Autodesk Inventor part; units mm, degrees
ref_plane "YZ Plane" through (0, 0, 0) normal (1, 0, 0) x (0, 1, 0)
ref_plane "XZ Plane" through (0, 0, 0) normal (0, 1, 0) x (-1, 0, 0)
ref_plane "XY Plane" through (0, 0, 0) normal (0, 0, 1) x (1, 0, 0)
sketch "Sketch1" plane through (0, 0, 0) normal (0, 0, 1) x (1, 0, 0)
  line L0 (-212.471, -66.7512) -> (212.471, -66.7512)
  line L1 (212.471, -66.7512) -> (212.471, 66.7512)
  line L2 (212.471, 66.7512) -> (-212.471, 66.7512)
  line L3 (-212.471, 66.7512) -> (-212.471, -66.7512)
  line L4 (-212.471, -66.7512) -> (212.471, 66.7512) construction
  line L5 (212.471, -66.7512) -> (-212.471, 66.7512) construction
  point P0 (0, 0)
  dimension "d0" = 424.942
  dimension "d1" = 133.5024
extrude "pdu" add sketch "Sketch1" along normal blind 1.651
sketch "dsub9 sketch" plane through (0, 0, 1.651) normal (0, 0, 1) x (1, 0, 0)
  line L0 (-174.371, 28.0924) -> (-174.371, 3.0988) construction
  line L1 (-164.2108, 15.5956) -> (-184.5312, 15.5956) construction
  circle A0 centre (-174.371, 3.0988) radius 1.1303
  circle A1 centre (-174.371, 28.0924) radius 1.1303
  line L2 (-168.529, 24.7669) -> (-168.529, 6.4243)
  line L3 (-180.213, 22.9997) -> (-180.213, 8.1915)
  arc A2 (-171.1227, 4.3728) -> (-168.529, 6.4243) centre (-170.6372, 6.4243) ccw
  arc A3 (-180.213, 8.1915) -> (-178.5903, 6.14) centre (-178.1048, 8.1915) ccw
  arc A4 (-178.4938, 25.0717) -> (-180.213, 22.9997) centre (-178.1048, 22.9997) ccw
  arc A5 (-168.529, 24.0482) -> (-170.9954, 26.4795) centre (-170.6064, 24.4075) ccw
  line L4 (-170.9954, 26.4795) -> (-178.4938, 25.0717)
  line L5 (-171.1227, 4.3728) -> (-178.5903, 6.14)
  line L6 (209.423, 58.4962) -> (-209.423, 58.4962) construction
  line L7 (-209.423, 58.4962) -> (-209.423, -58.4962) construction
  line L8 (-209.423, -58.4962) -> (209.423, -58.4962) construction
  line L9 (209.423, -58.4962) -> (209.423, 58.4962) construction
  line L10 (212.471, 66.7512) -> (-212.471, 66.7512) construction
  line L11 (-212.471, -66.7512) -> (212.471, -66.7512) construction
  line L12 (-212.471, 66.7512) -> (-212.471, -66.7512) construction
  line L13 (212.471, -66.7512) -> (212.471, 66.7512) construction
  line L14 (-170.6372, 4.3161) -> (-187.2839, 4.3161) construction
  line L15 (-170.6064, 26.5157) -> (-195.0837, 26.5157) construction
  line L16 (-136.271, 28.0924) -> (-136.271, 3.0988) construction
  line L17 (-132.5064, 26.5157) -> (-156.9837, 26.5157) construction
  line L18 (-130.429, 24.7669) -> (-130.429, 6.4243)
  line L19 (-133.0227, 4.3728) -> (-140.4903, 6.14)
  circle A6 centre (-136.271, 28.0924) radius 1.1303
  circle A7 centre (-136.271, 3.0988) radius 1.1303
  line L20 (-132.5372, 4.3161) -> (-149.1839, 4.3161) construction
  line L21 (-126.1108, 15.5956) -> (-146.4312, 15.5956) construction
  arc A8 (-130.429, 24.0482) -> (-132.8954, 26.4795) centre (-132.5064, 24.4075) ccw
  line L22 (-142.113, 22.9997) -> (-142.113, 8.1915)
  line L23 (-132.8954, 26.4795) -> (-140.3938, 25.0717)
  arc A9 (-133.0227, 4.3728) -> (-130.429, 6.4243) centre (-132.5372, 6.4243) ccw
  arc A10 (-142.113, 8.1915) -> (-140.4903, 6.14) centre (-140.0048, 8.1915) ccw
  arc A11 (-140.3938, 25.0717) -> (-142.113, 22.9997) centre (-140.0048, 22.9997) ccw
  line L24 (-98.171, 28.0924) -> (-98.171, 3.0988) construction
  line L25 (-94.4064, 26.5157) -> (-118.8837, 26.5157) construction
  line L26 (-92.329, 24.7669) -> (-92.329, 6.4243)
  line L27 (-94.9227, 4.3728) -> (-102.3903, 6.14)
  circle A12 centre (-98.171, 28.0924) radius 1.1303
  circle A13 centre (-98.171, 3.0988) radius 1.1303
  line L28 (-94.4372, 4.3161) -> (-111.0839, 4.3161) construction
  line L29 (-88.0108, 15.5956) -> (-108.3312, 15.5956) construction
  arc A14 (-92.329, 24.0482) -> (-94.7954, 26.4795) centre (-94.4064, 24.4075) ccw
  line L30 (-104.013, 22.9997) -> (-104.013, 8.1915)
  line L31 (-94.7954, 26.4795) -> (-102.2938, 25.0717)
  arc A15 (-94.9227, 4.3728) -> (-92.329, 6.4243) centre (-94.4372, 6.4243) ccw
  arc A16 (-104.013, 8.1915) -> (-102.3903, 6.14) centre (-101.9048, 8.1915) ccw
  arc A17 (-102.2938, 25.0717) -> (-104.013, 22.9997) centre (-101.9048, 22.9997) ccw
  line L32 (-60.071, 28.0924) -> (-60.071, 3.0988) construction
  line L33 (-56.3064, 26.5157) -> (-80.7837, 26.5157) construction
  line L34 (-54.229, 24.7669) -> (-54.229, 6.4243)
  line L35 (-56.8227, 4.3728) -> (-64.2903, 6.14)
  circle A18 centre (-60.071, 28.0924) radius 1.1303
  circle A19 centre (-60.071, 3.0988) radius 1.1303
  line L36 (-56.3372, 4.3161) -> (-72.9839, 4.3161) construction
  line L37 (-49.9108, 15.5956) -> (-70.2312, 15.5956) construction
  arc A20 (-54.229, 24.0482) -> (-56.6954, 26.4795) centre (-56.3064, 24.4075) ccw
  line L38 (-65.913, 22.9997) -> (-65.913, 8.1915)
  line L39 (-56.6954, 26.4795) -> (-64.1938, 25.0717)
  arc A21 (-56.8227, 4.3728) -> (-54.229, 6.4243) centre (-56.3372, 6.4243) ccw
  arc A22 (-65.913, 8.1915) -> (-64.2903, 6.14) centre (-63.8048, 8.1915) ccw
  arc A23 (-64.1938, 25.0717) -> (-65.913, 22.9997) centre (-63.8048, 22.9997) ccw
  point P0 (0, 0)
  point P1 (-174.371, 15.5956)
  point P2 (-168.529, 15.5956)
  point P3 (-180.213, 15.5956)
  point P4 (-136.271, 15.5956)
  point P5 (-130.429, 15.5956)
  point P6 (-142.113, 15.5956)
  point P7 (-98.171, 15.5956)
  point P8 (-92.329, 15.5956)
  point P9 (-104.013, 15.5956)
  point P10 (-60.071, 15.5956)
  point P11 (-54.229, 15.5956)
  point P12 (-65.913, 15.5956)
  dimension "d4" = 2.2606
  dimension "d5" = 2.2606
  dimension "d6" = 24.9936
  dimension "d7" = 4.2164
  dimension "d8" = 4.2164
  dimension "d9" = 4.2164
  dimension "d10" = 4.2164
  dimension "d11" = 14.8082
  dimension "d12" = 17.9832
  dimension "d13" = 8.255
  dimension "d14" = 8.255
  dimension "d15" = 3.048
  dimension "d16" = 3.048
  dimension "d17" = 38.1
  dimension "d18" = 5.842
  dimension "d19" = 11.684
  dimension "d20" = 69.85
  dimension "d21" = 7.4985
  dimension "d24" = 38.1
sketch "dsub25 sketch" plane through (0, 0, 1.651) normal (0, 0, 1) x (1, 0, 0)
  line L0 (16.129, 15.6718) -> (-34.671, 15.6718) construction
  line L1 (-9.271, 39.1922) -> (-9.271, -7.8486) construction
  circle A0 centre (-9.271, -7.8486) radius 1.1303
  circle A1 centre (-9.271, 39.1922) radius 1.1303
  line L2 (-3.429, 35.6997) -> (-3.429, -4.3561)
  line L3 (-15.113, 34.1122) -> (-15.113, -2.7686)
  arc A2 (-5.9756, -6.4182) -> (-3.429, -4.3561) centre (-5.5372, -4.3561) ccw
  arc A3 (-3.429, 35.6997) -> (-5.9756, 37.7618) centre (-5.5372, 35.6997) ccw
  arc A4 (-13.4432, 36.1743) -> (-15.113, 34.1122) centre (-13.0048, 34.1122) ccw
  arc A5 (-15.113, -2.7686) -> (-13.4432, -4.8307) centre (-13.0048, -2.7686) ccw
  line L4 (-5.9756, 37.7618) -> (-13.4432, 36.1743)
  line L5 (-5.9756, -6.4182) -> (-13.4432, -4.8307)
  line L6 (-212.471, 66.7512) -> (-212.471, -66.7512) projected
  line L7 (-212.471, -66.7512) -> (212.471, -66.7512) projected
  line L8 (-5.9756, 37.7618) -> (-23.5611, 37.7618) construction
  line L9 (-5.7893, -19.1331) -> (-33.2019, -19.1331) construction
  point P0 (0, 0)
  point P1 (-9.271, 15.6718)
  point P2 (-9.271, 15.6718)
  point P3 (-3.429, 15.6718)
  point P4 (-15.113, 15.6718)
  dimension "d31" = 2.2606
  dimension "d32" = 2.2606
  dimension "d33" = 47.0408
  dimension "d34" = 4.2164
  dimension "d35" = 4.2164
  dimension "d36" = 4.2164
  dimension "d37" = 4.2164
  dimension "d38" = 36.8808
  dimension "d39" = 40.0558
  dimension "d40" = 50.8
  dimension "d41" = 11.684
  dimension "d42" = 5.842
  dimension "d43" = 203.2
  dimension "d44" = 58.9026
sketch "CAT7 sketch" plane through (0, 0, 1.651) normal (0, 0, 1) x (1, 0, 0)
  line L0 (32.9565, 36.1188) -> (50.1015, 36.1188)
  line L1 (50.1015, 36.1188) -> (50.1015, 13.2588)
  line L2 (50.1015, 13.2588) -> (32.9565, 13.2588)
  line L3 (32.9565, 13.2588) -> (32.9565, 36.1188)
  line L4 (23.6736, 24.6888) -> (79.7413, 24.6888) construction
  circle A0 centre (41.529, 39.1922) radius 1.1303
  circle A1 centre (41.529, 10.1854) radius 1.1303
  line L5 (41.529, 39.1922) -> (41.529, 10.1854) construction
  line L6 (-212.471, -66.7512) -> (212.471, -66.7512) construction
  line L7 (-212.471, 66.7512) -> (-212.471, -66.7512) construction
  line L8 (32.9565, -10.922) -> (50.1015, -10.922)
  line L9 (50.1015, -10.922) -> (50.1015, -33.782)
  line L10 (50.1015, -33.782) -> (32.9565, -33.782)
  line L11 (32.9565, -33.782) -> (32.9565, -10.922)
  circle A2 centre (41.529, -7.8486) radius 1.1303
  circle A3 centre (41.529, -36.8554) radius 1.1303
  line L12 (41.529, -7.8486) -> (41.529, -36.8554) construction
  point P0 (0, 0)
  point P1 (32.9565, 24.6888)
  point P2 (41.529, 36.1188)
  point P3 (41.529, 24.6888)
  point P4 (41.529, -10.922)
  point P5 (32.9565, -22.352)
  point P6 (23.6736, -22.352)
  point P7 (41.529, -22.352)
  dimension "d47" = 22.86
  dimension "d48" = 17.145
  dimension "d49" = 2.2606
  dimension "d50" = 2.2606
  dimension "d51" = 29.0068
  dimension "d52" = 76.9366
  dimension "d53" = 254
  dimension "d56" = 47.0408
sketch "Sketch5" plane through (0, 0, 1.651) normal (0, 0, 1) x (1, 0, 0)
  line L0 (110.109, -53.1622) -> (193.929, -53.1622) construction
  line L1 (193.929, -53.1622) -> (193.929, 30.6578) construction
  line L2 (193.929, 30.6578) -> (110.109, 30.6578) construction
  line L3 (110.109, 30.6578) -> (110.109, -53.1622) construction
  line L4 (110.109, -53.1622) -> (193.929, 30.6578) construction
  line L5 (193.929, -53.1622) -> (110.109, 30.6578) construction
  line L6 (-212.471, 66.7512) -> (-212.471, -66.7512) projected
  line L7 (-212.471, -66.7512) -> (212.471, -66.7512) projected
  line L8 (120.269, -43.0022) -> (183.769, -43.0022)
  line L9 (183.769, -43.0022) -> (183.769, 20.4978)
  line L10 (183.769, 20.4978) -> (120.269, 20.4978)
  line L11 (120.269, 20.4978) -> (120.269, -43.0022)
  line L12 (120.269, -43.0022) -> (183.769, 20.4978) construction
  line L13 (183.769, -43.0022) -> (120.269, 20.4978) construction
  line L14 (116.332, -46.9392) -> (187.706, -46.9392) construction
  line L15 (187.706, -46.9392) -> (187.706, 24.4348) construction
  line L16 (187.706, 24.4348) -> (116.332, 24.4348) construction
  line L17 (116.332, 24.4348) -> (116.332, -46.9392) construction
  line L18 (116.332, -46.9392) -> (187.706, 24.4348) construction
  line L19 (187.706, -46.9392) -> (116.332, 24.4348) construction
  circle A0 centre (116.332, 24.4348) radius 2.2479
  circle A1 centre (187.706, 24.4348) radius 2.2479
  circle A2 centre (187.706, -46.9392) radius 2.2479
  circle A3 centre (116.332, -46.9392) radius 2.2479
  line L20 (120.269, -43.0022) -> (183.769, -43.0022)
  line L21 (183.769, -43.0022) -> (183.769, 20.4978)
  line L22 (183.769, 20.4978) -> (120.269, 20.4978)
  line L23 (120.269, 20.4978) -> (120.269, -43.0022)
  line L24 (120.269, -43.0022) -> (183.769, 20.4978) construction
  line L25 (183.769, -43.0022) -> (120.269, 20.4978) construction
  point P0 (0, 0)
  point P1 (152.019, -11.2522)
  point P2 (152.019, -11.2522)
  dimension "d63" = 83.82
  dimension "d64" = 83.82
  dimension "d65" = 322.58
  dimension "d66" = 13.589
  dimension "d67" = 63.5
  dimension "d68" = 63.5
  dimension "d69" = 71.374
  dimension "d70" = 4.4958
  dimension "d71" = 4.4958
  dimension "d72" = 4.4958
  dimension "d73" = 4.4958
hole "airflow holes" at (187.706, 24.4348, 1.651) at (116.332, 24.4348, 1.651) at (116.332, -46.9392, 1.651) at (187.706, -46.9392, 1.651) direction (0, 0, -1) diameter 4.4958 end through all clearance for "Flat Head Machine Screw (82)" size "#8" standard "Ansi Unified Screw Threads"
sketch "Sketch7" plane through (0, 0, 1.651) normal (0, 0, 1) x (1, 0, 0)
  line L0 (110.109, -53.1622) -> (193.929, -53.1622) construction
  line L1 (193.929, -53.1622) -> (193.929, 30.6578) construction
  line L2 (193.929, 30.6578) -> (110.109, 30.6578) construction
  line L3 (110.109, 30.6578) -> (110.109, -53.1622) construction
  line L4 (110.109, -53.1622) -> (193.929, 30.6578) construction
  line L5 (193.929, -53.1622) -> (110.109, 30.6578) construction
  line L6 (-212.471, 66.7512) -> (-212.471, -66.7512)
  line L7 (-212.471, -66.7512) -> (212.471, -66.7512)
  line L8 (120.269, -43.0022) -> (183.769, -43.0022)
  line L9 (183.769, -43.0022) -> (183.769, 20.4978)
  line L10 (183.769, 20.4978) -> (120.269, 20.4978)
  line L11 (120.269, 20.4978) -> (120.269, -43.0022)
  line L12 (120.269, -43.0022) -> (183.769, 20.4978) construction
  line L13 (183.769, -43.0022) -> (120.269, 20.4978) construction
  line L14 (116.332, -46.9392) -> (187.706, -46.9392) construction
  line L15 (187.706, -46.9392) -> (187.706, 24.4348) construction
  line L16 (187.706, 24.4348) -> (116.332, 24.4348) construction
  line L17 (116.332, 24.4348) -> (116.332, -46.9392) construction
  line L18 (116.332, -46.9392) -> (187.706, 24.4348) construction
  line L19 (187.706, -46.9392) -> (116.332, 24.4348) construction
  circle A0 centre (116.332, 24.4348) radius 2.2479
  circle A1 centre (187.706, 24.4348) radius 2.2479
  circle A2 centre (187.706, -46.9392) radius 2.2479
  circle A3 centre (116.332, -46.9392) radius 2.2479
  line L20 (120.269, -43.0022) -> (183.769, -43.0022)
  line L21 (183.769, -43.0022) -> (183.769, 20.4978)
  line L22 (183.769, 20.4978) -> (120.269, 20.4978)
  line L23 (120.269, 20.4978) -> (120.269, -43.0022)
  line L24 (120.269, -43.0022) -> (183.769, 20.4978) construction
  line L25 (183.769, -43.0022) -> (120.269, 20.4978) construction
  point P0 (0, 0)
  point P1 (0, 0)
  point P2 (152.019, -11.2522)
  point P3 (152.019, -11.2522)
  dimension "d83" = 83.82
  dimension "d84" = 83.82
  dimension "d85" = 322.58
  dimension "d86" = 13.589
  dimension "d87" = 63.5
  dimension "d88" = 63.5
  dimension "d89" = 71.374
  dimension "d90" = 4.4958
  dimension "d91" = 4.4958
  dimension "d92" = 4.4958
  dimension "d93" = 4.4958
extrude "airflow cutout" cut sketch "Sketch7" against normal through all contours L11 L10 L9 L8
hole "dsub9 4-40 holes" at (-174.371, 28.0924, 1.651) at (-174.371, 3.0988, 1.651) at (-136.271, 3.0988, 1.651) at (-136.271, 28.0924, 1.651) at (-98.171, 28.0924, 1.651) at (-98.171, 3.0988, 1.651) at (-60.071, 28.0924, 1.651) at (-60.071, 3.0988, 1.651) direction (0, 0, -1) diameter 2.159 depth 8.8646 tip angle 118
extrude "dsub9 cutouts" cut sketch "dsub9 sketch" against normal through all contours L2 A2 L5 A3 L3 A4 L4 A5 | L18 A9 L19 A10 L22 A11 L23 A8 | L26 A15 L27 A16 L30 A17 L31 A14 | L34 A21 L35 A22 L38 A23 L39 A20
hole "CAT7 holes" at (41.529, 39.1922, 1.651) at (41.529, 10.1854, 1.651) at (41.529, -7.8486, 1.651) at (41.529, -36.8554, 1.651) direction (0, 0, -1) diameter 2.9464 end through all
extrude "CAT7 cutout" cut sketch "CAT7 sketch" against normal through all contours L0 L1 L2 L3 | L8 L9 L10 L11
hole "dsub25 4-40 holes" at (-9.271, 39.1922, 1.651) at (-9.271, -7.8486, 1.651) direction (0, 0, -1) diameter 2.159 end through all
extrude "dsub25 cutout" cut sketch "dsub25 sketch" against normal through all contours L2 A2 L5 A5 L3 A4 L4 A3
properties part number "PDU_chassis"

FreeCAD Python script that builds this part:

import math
import FreeCAD as App
import Part
import Sketcher

V = App.Vector
Q = App.Units.Quantity


def add_polygon(sketch, points):
    """Adds a closed chain of lines whose ends are joined by coincident constraints."""
    first, n = sketch.GeometryCount, len(points)
    for a, b in zip(points, points[1:] + points[:1]):
        sketch.addGeometry(Part.LineSegment(App.Vector(*a, 0), App.Vector(*b, 0)), False)
    for i in range(n):
        sketch.addConstraint(Sketcher.Constraint("Coincident", first + i, 2, first + (i + 1) % n, 1))

doc = App.newDocument("Part")
body = doc.addObject("PartDesign::Body", "Body")

# Sketch on XY plane
sketch1 = body.newObject("Sketcher::SketchObject", "Sketch")
sketch1.AttachmentSupport = (doc.getObject("XY_Plane"), [""])
sketch1.MapMode = "FlatFace"
add_polygon(sketch1, [(-212.471, 66.7512), (-212.471, -66.7512), (212.471, -66.7512), (212.471, 66.7512)])  # lines 0-3
sketch1.addConstraint(Sketcher.Constraint("Vertical", 0))
sketch1.addConstraint(Sketcher.Constraint("Horizontal", 1))
sketch1.addConstraint(Sketcher.Constraint("Vertical", 2))
sketch1.addConstraint(Sketcher.Constraint("Horizontal", 3))
sketch1.addConstraint(Sketcher.Constraint("Symmetric", 0, 2, 2, 2, -1, 1))
sketch1.addConstraint(Sketcher.Constraint("DistanceX", 1, 1, 1, 2, Q("16.73 in")))
sketch1.addConstraint(Sketcher.Constraint("DistanceY", 0, 2, 0, 1, Q("5.256 in")))
pad1 = body.newObject("PartDesign::Pad", "Pad")
pad1.Profile = sketch1
pad1.Length = Q("0.065 in")

# Sketch on XY plane
sketch2 = body.newObject("Sketcher::SketchObject", "Sketch001")
sketch2.AttachmentSupport = (doc.getObject("XY_Plane"), [""])
sketch2.MapMode = "FlatFace"
sketch2.AttachmentOffset = App.Placement(V(0, 0, 0.065 * 25.4), App.Rotation())
sketch2.addGeometry(Part.Circle(V(187.706, 24.4348, 0), V(0, 0, 1), 2.2479), False)
sketch2.addGeometry(Part.Circle(V(116.332, 24.4348, 0), V(0, 0, 1), 2.2479), False)
sketch2.addGeometry(Part.Circle(V(116.332, -46.9392, 0), V(0, 0, 1), 2.2479), False)
sketch2.addGeometry(Part.Circle(V(187.706, -46.9392, 0), V(0, 0, 1), 2.2479), False)
sketch2.addConstraint(Sketcher.Constraint("Equal", 0, 1))
sketch2.addConstraint(Sketcher.Constraint("Equal", 1, 2))
sketch2.addConstraint(Sketcher.Constraint("Equal", 2, 3))
sketch2.addConstraint(Sketcher.Constraint("Horizontal", 0, 3, 1, 3))
sketch2.addConstraint(Sketcher.Constraint("Horizontal", 2, 3, 3, 3))
sketch2.addConstraint(Sketcher.Constraint("Vertical", 1, 3, 2, 3))
sketch2.addConstraint(Sketcher.Constraint("Vertical", 0, 3, 3, 3))
sketch2.addConstraint(Sketcher.Constraint("Diameter", 0, Q("0.177 in")))
sketch2.addConstraint(Sketcher.Constraint("DistanceX", -1, 1, 0, 3, Q("7.39 in")))
sketch2.addConstraint(Sketcher.Constraint("DistanceX", -1, 1, 1, 3, Q("4.58 in")))
sketch2.addConstraint(Sketcher.Constraint("DistanceY", 2, 3, 1, 3, Q("2.81 in")))
sketch2.addConstraint(Sketcher.Constraint("DistanceY", -1, 1, 0, 3, Q("0.962 in")))
doc.recompute()
hole = body.newObject("PartDesign::Hole", "Hole")
hole.Profile = sketch2
hole.ThreadType = "None"
hole.Diameter = Q("0.177 in")
hole.DepthType = "ThroughAll"

# Sketch on XY plane
sketch3 = body.newObject("Sketcher::SketchObject", "Sketch002")
sketch3.AttachmentSupport = (doc.getObject("XY_Plane"), [""])
sketch3.MapMode = "FlatFace"
sketch3.AttachmentOffset = App.Placement(V(0, 0, 0.065 * 25.4), App.Rotation())
add_polygon(sketch3, [(120.269, 20.4978), (120.269, -43.0022), (183.769, -43.0022), (183.769, 20.4978)])  # lines 0-3
sketch3.addConstraint(Sketcher.Constraint("Vertical", 0))
sketch3.addConstraint(Sketcher.Constraint("Horizontal", 1))
sketch3.addConstraint(Sketcher.Constraint("Vertical", 2))
sketch3.addConstraint(Sketcher.Constraint("Horizontal", 3))
sketch3.addConstraint(Sketcher.Constraint("Equal", 3, 0))
sketch3.addConstraint(Sketcher.Constraint("DistanceX", 1, 1, 1, 2, Q("2.5 in")))
sketch3.addConstraint(Sketcher.Constraint("DistanceX", -1, 1, 0, 2, Q("4.735 in")))
sketch3.addConstraint(Sketcher.Constraint("DistanceY", 0, 2, -1, 1, Q("1.693 in")))
pocket1 = body.newObject("PartDesign::Pocket", "Pocket")
pocket1.Profile = sketch3
pocket1.Type = "ThroughAll"

# Sketch on XY plane
sketch4 = body.newObject("Sketcher::SketchObject", "Sketch003")
sketch4.AttachmentSupport = (doc.getObject("XY_Plane"), [""])
sketch4.MapMode = "FlatFace"
sketch4.AttachmentOffset = App.Placement(V(0, 0, 0.065 * 25.4), App.Rotation())
sketch4.addGeometry(Part.Circle(V(-174.371, 28.0924, 0), V(0, 0, 1), 1.0795), False)
sketch4.addGeometry(Part.Circle(V(-174.371, 3.0988, 0), V(0, 0, 1), 1.0795), False)
sketch4.addGeometry(Part.Circle(V(-136.271, 3.0988, 0), V(0, 0, 1), 1.0795), False)
sketch4.addGeometry(Part.Circle(V(-136.271, 28.0924, 0), V(0, 0, 1), 1.0795), False)
sketch4.addGeometry(Part.Circle(V(-98.171, 28.0924, 0), V(0, 0, 1), 1.0795), False)
sketch4.addGeometry(Part.Circle(V(-98.171, 3.0988, 0), V(0, 0, 1), 1.0795), False)
sketch4.addGeometry(Part.Circle(V(-60.071, 28.0924, 0), V(0, 0, 1), 1.0795), False)
sketch4.addGeometry(Part.Circle(V(-60.071, 3.0988, 0), V(0, 0, 1), 1.0795), False)
sketch4.addConstraint(Sketcher.Constraint("Equal", 0, 1))
sketch4.addConstraint(Sketcher.Constraint("Equal", 1, 2))
sketch4.addConstraint(Sketcher.Constraint("Equal", 2, 3))
sketch4.addConstraint(Sketcher.Constraint("Equal", 3, 4))
sketch4.addConstraint(Sketcher.Constraint("Equal", 4, 5))
sketch4.addConstraint(Sketcher.Constraint("Equal", 5, 6))
sketch4.addConstraint(Sketcher.Constraint("Equal", 6, 7))
sketch4.addConstraint(Sketcher.Constraint("Horizontal", 1, 3, 2, 3))
sketch4.addConstraint(Sketcher.Constraint("Horizontal", 0, 3, 3, 3))
sketch4.addConstraint(Sketcher.Constraint("Horizontal", 3, 3, 4, 3))
sketch4.addConstraint(Sketcher.Constraint("Horizontal", 2, 3, 5, 3))
sketch4.addConstraint(Sketcher.Constraint("Horizontal", 4, 3, 6, 3))
sketch4.addConstraint(Sketcher.Constraint("Horizontal", 5, 3, 7, 3))
sketch4.addConstraint(Sketcher.Constraint("Vertical", 0, 3, 1, 3))
sketch4.addConstraint(Sketcher.Constraint("Vertical", 2, 3, 3, 3))
sketch4.addConstraint(Sketcher.Constraint("Vertical", 4, 3, 5, 3))
sketch4.addConstraint(Sketcher.Constraint("Vertical", 6, 3, 7, 3))
sketch4.addConstraint(Sketcher.Constraint("Diameter", 0, Q("0.085 in")))
sketch4.addConstraint(Sketcher.Constraint("DistanceX", 0, 3, 4, 3, Q("3 in")))
sketch4.addConstraint(Sketcher.Constraint("DistanceX", 3, 3, 6, 3, Q("3 in")))
sketch4.addConstraint(Sketcher.Constraint("DistanceX", 1, 3, 2, 3, Q("1.5 in")))
sketch4.addConstraint(Sketcher.Constraint("DistanceX", 0, 3, -1, 1, Q("6.865 in")))
sketch4.addConstraint(Sketcher.Constraint("DistanceY", -1, 1, 0, 3, Q("1.106 in")))
sketch4.addConstraint(Sketcher.Constraint("DistanceY", -1, 1, 1, 3, Q("0.122 in")))
doc.recompute()
hole2 = body.newObject("PartDesign::Hole", "Hole001")
hole2.Profile = sketch4
hole2.ThreadType = "None"
hole2.Diameter = Q("0.085 in")
hole2.DepthType = "Dimension"
hole2.Depth = Q("0.349 in")
hole2.DrillPoint = "Angled"
hole2.DrillPointAngle = 118

# Sketch on XY plane
sketch5 = body.newObject("Sketcher::SketchObject", "Sketch004")
sketch5.AttachmentSupport = (doc.getObject("XY_Plane"), [""])
sketch5.MapMode = "FlatFace"
sketch5.AttachmentOffset = App.Placement(V(0, 0, 0.065 * 25.4), App.Rotation())
sketch5.addGeometry(Part.LineSegment(V(-168.529, 6.4243, 0), V(-168.529, 24.7669, 0)), False)
sketch5.addGeometry(Part.ArcOfCircle(Part.Circle(V(-170.6064, 24.4075, 0), V(0, 0, 1), 2.108243), math.radians(9.815284), math.radians(100.633011)), False)
sketch5.addGeometry(Part.LineSegment(V(-170.9954, 26.4795, 0), V(-178.4938, 25.0717, 0)), False)
sketch5.addGeometry(Part.ArcOfCircle(Part.Circle(V(-178.1048, 22.9997, 0), V(0, 0, 1), 2.108199), math.radians(100.633011), math.radians(180)), False)
sketch5.addGeometry(Part.LineSegment(V(-180.213, 22.9997, 0), V(-180.213, 8.1915, 0)), False)
sketch5.addGeometry(Part.ArcOfCircle(Part.Circle(V(-178.1048, 8.1915, 0), V(0, 0, 1), 2.1082), math.radians(180), math.radians(256.68556)), False)
sketch5.addGeometry(Part.LineSegment(V(-178.5903, 6.14, 0), V(-171.1227, 4.3728, 0)), False)
sketch5.addGeometry(Part.ArcOfCircle(Part.Circle(V(-170.6372, 6.4243, 0), V(0, 0, 1), 2.108166), math.radians(-103.31444), math.radians(0)), False)
sketch5.addGeometry(Part.LineSegment(V(-130.429, 6.4243, 0), V(-130.429, 24.7669, 0)), False)
sketch5.addGeometry(Part.ArcOfCircle(Part.Circle(V(-132.5064, 24.4075, 0), V(0, 0, 1), 2.108243), math.radians(9.815284), math.radians(100.633011)), False)
sketch5.addGeometry(Part.LineSegment(V(-132.8954, 26.4795, 0), V(-140.3938, 25.0717, 0)), False)
sketch5.addGeometry(Part.ArcOfCircle(Part.Circle(V(-140.0048, 22.9997, 0), V(0, 0, 1), 2.108199), math.radians(100.633011), math.radians(180)), False)
sketch5.addGeometry(Part.LineSegment(V(-142.113, 22.9997, 0), V(-142.113, 8.1915, 0)), False)
sketch5.addGeometry(Part.ArcOfCircle(Part.Circle(V(-140.0048, 8.1915, 0), V(0, 0, 1), 2.1082), math.radians(180), math.radians(256.68556)), False)
sketch5.addGeometry(Part.LineSegment(V(-140.4903, 6.14, 0), V(-133.0227, 4.3728, 0)), False)
sketch5.addGeometry(Part.ArcOfCircle(Part.Circle(V(-132.5372, 6.4243, 0), V(0, 0, 1), 2.108166), math.radians(-103.31444), math.radians(0)), False)
sketch5.addGeometry(Part.LineSegment(V(-92.329, 6.4243, 0), V(-92.329, 24.7669, 0)), False)
sketch5.addGeometry(Part.ArcOfCircle(Part.Circle(V(-94.4064, 24.4075, 0), V(0, 0, 1), 2.108243), math.radians(9.815284), math.radians(100.633011)), False)
sketch5.addGeometry(Part.LineSegment(V(-94.7954, 26.4795, 0), V(-102.2938, 25.0717, 0)), False)
sketch5.addGeometry(Part.ArcOfCircle(Part.Circle(V(-101.9048, 22.9997, 0), V(0, 0, 1), 2.108199), math.radians(100.633011), math.radians(180)), False)
sketch5.addGeometry(Part.LineSegment(V(-104.013, 22.9997, 0), V(-104.013, 8.1915, 0)), False)
sketch5.addGeometry(Part.ArcOfCircle(Part.Circle(V(-101.9048, 8.1915, 0), V(0, 0, 1), 2.1082), math.radians(180), math.radians(256.68556)), False)
sketch5.addGeometry(Part.LineSegment(V(-102.3903, 6.14, 0), V(-94.9227, 4.3728, 0)), False)
sketch5.addGeometry(Part.ArcOfCircle(Part.Circle(V(-94.4372, 6.4243, 0), V(0, 0, 1), 2.108166), math.radians(-103.31444), math.radians(0)), False)
sketch5.addGeometry(Part.LineSegment(V(-54.229, 6.4243, 0), V(-54.229, 24.7669, 0)), False)
sketch5.addGeometry(Part.ArcOfCircle(Part.Circle(V(-56.3064, 24.4075, 0), V(0, 0, 1), 2.108243), math.radians(9.815284), math.radians(100.633011)), False)
sketch5.addGeometry(Part.LineSegment(V(-56.6954, 26.4795, 0), V(-64.1938, 25.0717, 0)), False)
sketch5.addGeometry(Part.ArcOfCircle(Part.Circle(V(-63.8048, 22.9997, 0), V(0, 0, 1), 2.108199), math.radians(100.633011), math.radians(180)), False)
sketch5.addGeometry(Part.LineSegment(V(-65.913, 22.9997, 0), V(-65.913, 8.1915, 0)), False)
sketch5.addGeometry(Part.ArcOfCircle(Part.Circle(V(-63.8048, 8.1915, 0), V(0, 0, 1), 2.1082), math.radians(180), math.radians(256.68556)), False)
sketch5.addGeometry(Part.LineSegment(V(-64.2903, 6.14, 0), V(-56.8227, 4.3728, 0)), False)
sketch5.addGeometry(Part.ArcOfCircle(Part.Circle(V(-56.3372, 6.4243, 0), V(0, 0, 1), 2.108166), math.radians(-103.31444), math.radians(0)), False)
sketch5.addConstraint(Sketcher.Constraint("Coincident", 0, 2, 1, 1))
sketch5.addConstraint(Sketcher.Constraint("Tangent", 1, 2, 2, 1))
sketch5.addConstraint(Sketcher.Constraint("Tangent", 2, 2, 3, 1))
sketch5.addConstraint(Sketcher.Constraint("Tangent", 3, 2, 4, 1))
sketch5.addConstraint(Sketcher.Constraint("Tangent", 4, 2, 5, 1))
sketch5.addConstraint(Sketcher.Constraint("Tangent", 5, 2, 6, 1))
sketch5.addConstraint(Sketcher.Constraint("Tangent", 6, 2, 7, 1))
sketch5.addConstraint(Sketcher.Constraint("Tangent", 7, 2, 0, 1))
sketch5.addConstraint(Sketcher.Constraint("Coincident", 8, 2, 9, 1))
sketch5.addConstraint(Sketcher.Constraint("Tangent", 9, 2, 10, 1))
sketch5.addConstraint(Sketcher.Constraint("Tangent", 10, 2, 11, 1))
sketch5.addConstraint(Sketcher.Constraint("Tangent", 11, 2, 12, 1))
sketch5.addConstraint(Sketcher.Constraint("Tangent", 12, 2, 13, 1))
sketch5.addConstraint(Sketcher.Constraint("Tangent", 13, 2, 14, 1))
sketch5.addConstraint(Sketcher.Constraint("Tangent", 14, 2, 15, 1))
sketch5.addConstraint(Sketcher.Constraint("Tangent", 15, 2, 8, 1))
sketch5.addConstraint(Sketcher.Constraint("Coincident", 16, 2, 17, 1))
sketch5.addConstraint(Sketcher.Constraint("Tangent", 17, 2, 18, 1))
sketch5.addConstraint(Sketcher.Constraint("Tangent", 18, 2, 19, 1))
sketch5.addConstraint(Sketcher.Constraint("Tangent", 19, 2, 20, 1))
sketch5.addConstraint(Sketcher.Constraint("Tangent", 20, 2, 21, 1))
sketch5.addConstraint(Sketcher.Constraint("Tangent", 21, 2, 22, 1))
sketch5.addConstraint(Sketcher.Constraint("Tangent", 22, 2, 23, 1))
sketch5.addConstraint(Sketcher.Constraint("Tangent", 23, 2, 16, 1))
sketch5.addConstraint(Sketcher.Constraint("Coincident", 24, 2, 25, 1))
sketch5.addConstraint(Sketcher.Constraint("Tangent", 25, 2, 26, 1))
sketch5.addConstraint(Sketcher.Constraint("Tangent", 26, 2, 27, 1))
sketch5.addConstraint(Sketcher.Constraint("Tangent", 27, 2, 28, 1))
sketch5.addConstraint(Sketcher.Constraint("Tangent", 28, 2, 29, 1))
sketch5.addConstraint(Sketcher.Constraint("Tangent", 29, 2, 30, 1))
sketch5.addConstraint(Sketcher.Constraint("Tangent", 30, 2, 31, 1))
sketch5.addConstraint(Sketcher.Constraint("Tangent", 31, 2, 24, 1))
sketch5.addConstraint(Sketcher.Constraint("Vertical", 0))
sketch5.addConstraint(Sketcher.Constraint("Vertical", 4))
sketch5.addConstraint(Sketcher.Constraint("Vertical", 8))
sketch5.addConstraint(Sketcher.Constraint("Vertical", 12))
sketch5.addConstraint(Sketcher.Constraint("Vertical", 16))
sketch5.addConstraint(Sketcher.Constraint("Vertical", 20))
sketch5.addConstraint(Sketcher.Constraint("Vertical", 24))
sketch5.addConstraint(Sketcher.Constraint("Vertical", 28))
sketch5.addConstraint(Sketcher.Constraint("Equal", 1, 3))
sketch5.addConstraint(Sketcher.Constraint("Equal", 3, 5))
sketch5.addConstraint(Sketcher.Constraint("Equal", 5, 7))
sketch5.addConstraint(Sketcher.Constraint("Equal", 7, 9))
sketch5.addConstraint(Sketcher.Constraint("Equal", 9, 11))
sketch5.addConstraint(Sketcher.Constraint("Equal", 11, 13))
sketch5.addConstraint(Sketcher.Constraint("Equal", 13, 15))
sketch5.addConstraint(Sketcher.Constraint("Equal", 15, 17))
sketch5.addConstraint(Sketcher.Constraint("Equal", 17, 19))
sketch5.addConstraint(Sketcher.Constraint("Equal", 19, 21))
sketch5.addConstraint(Sketcher.Constraint("Equal", 21, 23))
sketch5.addConstraint(Sketcher.Constraint("Equal", 23, 25))
sketch5.addConstraint(Sketcher.Constraint("Equal", 25, 27))
sketch5.addConstraint(Sketcher.Constraint("Equal", 27, 29))
sketch5.addConstraint(Sketcher.Constraint("Equal", 29, 31))
sketch5.addConstraint(Sketcher.Constraint("Parallel", 2, 10))
sketch5.addConstraint(Sketcher.Constraint("Parallel", 6, 14))
sketch5.addConstraint(Sketcher.Constraint("Parallel", 10, 18))
sketch5.addConstraint(Sketcher.Constraint("Parallel", 14, 22))
sketch5.addConstraint(Sketcher.Constraint("Parallel", 18, 26))
sketch5.addConstraint(Sketcher.Constraint("Parallel", 22, 30))
sketch5.addConstraint(Sketcher.Constraint("Horizontal", 1, 3, 9, 3))
sketch5.addConstraint(Sketcher.Constraint("Horizontal", 3, 3, 11, 3))
sketch5.addConstraint(Sketcher.Constraint("Horizontal", 5, 3, 13, 3))
sketch5.addConstraint(Sketcher.Constraint("Horizontal", 7, 3, 15, 3))
sketch5.addConstraint(Sketcher.Constraint("Horizontal", 9, 3, 17, 3))
sketch5.addConstraint(Sketcher.Constraint("Horizontal", 11, 3, 19, 3))
sketch5.addConstraint(Sketcher.Constraint("Horizontal", 13, 3, 21, 3))
sketch5.addConstraint(Sketcher.Constraint("Horizontal", 15, 3, 23, 3))
sketch5.addConstraint(Sketcher.Constraint("Horizontal", 17, 3, 25, 3))
sketch5.addConstraint(Sketcher.Constraint("Horizontal", 19, 3, 27, 3))
sketch5.addConstraint(Sketcher.Constraint("Horizontal", 21, 3, 29, 3))
sketch5.addConstraint(Sketcher.Constraint("Horizontal", 23, 3, 31, 3))
sketch5.addConstraint(Sketcher.Constraint("Radius", 1, Q("0.083 in")))
sketch5.addConstraint(Sketcher.Constraint("DistanceX", 1, 3, 9, 3, Q("1.5 in")))
sketch5.addConstraint(Sketcher.Constraint("DistanceX", 9, 3, 17, 3, Q("1.5 in")))
sketch5.addConstraint(Sketcher.Constraint("DistanceX", 17, 3, 25, 3, Q("1.5 in")))
sketch5.addConstraint(Sketcher.Constraint("DistanceY", 4, 2, 4, 1, Q("0.583 in")))
sketch5.addConstraint(Sketcher.Constraint("DistanceX", 3, 2, 0, 2, Q("0.46 in")))
sketch5.addConstraint(Sketcher.Constraint("DistanceY", 7, 3, 1, 3, Q("0.708 in")))
sketch5.addConstraint(Sketcher.Constraint("DistanceX", 3, 3, 1, 3, 7.4984))
sketch5.addConstraint(Sketcher.Constraint("DistanceY", 5, 3, 1, 2, Q("0.72 in")))
sketch5.addConstraint(Sketcher.Constraint("DistanceX", 3, 3, -1, 1, Q("7.012 in")))
sketch5.addConstraint(Sketcher.Constraint("DistanceY", -1, 1, 3, 3, Q("0.9055 in")))
pocket2 = body.newObject("PartDesign::Pocket", "Pocket001")
pocket2.Profile = sketch5
pocket2.Type = "ThroughAll"

# Sketch on XY plane
sketch6 = body.newObject("Sketcher::SketchObject", "Sketch005")
sketch6.AttachmentSupport = (doc.getObject("XY_Plane"), [""])
sketch6.MapMode = "FlatFace"
sketch6.AttachmentOffset = App.Placement(V(0, 0, 0.065 * 25.4), App.Rotation())
sketch6.addGeometry(Part.Circle(V(41.529, 39.1922, 0), V(0, 0, 1), 1.4732), False)
sketch6.addGeometry(Part.Circle(V(41.529, 10.1854, 0), V(0, 0, 1), 1.4732), False)
sketch6.addGeometry(Part.Circle(V(41.529, -7.8486, 0), V(0, 0, 1), 1.4732), False)
sketch6.addGeometry(Part.Circle(V(41.529, -36.8554, 0), V(0, 0, 1), 1.4732), False)
sketch6.addConstraint(Sketcher.Constraint("Equal", 0, 1))
sketch6.addConstraint(Sketcher.Constraint("Equal", 1, 2))
sketch6.addConstraint(Sketcher.Constraint("Equal", 2, 3))
sketch6.addConstraint(Sketcher.Constraint("Vertical", 0, 3, 1, 3))
sketch6.addConstraint(Sketcher.Constraint("Vertical", 1, 3, 2, 3))
sketch6.addConstraint(Sketcher.Constraint("Vertical", 2, 3, 3, 3))
sketch6.addConstraint(Sketcher.Constraint("Diameter", 0, Q("0.116 in")))
sketch6.addConstraint(Sketcher.Constraint("DistanceY", 2, 3, 1, 3, Q("0.71 in")))
sketch6.addConstraint(Sketcher.Constraint("DistanceX", -1, 1, 0, 3, Q("1.635 in")))
sketch6.addConstraint(Sketcher.Constraint("DistanceY", -1, 1, 0, 3, Q("1.543 in")))
sketch6.addConstraint(Sketcher.Constraint("DistanceY", -1, 1, 1, 3, Q("0.401 in")))
sketch6.addConstraint(Sketcher.Constraint("DistanceY", 3, 3, -1, 1, Q("1.451 in")))
doc.recompute()
hole3 = body.newObject("PartDesign::Hole", "Hole002")
hole3.Profile = sketch6
hole3.ThreadType = "None"
hole3.Diameter = Q("0.116 in")
hole3.DepthType = "ThroughAll"

# Sketch on XY plane
sketch7 = body.newObject("Sketcher::SketchObject", "Sketch006")
sketch7.AttachmentSupport = (doc.getObject("XY_Plane"), [""])
sketch7.MapMode = "FlatFace"
sketch7.AttachmentOffset = App.Placement(V(0, 0, 0.065 * 25.4), App.Rotation())
add_polygon(sketch7, [(50.1015, 36.1188), (32.9565, 36.1188), (32.9565, 13.2588), (50.1015, 13.2588)])  # lines 0-3
add_polygon(sketch7, [(50.1015, -10.922), (32.9565, -10.922), (32.9565, -33.782), (50.1015, -33.782)])  # lines 4-7
sketch7.addConstraint(Sketcher.Constraint("Horizontal", 0))
sketch7.addConstraint(Sketcher.Constraint("Vertical", 1))
sketch7.addConstraint(Sketcher.Constraint("Horizontal", 2))
sketch7.addConstraint(Sketcher.Constraint("Vertical", 3))
sketch7.addConstraint(Sketcher.Constraint("Horizontal", 4))
sketch7.addConstraint(Sketcher.Constraint("Vertical", 5))
sketch7.addConstraint(Sketcher.Constraint("Horizontal", 6))
sketch7.addConstraint(Sketcher.Constraint("Vertical", 7))
sketch7.addConstraint(Sketcher.Constraint("Vertical", 1, 2, 4, 2))
sketch7.addConstraint(Sketcher.Constraint("Vertical", 3, 2, 6, 2))
sketch7.addConstraint(Sketcher.Constraint("Equal", 3, 5))
sketch7.addConstraint(Sketcher.Constraint("DistanceY", 1, 2, 1, 1, Q("0.9 in")))
sketch7.addConstraint(Sketcher.Constraint("DistanceX", 0, 2, 0, 1, Q("0.675 in")))
sketch7.addConstraint(Sketcher.Constraint("DistanceY", 4, 2, 0, 2, Q("1.852 in")))
sketch7.addConstraint(Sketcher.Constraint("DistanceY", 4, 2, -1, 1, Q("0.43 in")))
sketch7.addConstraint(Sketcher.Constraint("DistanceX", -1, 1, 0, 2, Q("1.2975 in")))
pocket3 = body.newObject("PartDesign::Pocket", "Pocket002")
pocket3.Profile = sketch7
pocket3.Type = "ThroughAll"

# Sketch on XY plane
sketch8 = body.newObject("Sketcher::SketchObject", "Sketch007")
sketch8.AttachmentSupport = (doc.getObject("XY_Plane"), [""])
sketch8.MapMode = "FlatFace"
sketch8.AttachmentOffset = App.Placement(V(0, 0, 0.065 * 25.4), App.Rotation())
sketch8.addGeometry(Part.Circle(V(-9.271, 39.1922, 0), V(0, 0, 1), 1.0795), False)
sketch8.addGeometry(Part.Circle(V(-9.271, -7.8486, 0), V(0, 0, 1), 1.0795), False)
sketch8.addConstraint(Sketcher.Constraint("Equal", 0, 1))
sketch8.addConstraint(Sketcher.Constraint("Vertical", 0, 3, 1, 3))
sketch8.addConstraint(Sketcher.Constraint("Diameter", 0, Q("0.085 in")))
sketch8.addConstraint(Sketcher.Constraint("DistanceX", 0, 3, -1, 1, Q("0.365 in")))
sketch8.addConstraint(Sketcher.Constraint("DistanceY", -1, 1, 0, 3, Q("1.543 in")))
sketch8.addConstraint(Sketcher.Constraint("DistanceY", 1, 3, -1, 1, Q("0.309 in")))
doc.recompute()
hole4 = body.newObject("PartDesign::Hole", "Hole003")
hole4.Profile = sketch8
hole4.ThreadType = "None"
hole4.Diameter = Q("0.085 in")
hole4.DepthType = "ThroughAll"

# Sketch on XY plane
sketch9 = body.newObject("Sketcher::SketchObject", "Sketch008")
sketch9.AttachmentSupport = (doc.getObject("XY_Plane"), [""])
sketch9.MapMode = "FlatFace"
sketch9.AttachmentOffset = App.Placement(V(0, 0, 0.065 * 25.4), App.Rotation())
sketch9.addGeometry(Part.LineSegment(V(-3.429, -4.3561, 0), V(-3.429, 35.6997, 0)), False)
sketch9.addGeometry(Part.ArcOfCircle(Part.Circle(V(-5.5372, 35.6997, 0), V(0, 0, 1), 2.1082), math.radians(0), math.radians(102.002316)), False)
sketch9.addGeometry(Part.LineSegment(V(-5.9756, 37.7618, 0), V(-13.4432, 36.1743, 0)), False)
sketch9.addGeometry(Part.ArcOfCircle(Part.Circle(V(-13.0048, 34.1122, 0), V(0, 0, 1), 2.108187), math.radians(102.002316), math.radians(180)), False)
sketch9.addGeometry(Part.LineSegment(V(-15.113, 34.1122, 0), V(-15.113, -2.7686, 0)), False)
sketch9.addGeometry(Part.ArcOfCircle(Part.Circle(V(-13.0048, -2.7686, 0), V(0, 0, 1), 2.1082), math.radians(180), math.radians(257.997684)), False)
sketch9.addGeometry(Part.LineSegment(V(-13.4432, -4.8307, 0), V(-5.9756, -6.4182, 0)), False)
sketch9.addGeometry(Part.ArcOfCircle(Part.Circle(V(-5.5372, -4.3561, 0), V(0, 0, 1), 2.108187), math.radians(-102.002316), math.radians(0)), False)
sketch9.addConstraint(Sketcher.Constraint("Tangent", 0, 2, 1, 1))
sketch9.addConstraint(Sketcher.Constraint("Tangent", 1, 2, 2, 1))
sketch9.addConstraint(Sketcher.Constraint("Tangent", 2, 2, 3, 1))
sketch9.addConstraint(Sketcher.Constraint("Tangent", 3, 2, 4, 1))
sketch9.addConstraint(Sketcher.Constraint("Tangent", 4, 2, 5, 1))
sketch9.addConstraint(Sketcher.Constraint("Tangent", 5, 2, 6, 1))
sketch9.addConstraint(Sketcher.Constraint("Tangent", 6, 2, 7, 1))
sketch9.addConstraint(Sketcher.Constraint("Tangent", 7, 2, 0, 1))
sketch9.addConstraint(Sketcher.Constraint("Vertical", 0))
sketch9.addConstraint(Sketcher.Constraint("Vertical", 4))
sketch9.addConstraint(Sketcher.Constraint("Equal", 1, 3))
sketch9.addConstraint(Sketcher.Constraint("Equal", 3, 5))
sketch9.addConstraint(Sketcher.Constraint("Equal", 5, 7))
sketch9.addConstraint(Sketcher.Constraint("Vertical", 2, 2, 5, 2))
sketch9.addConstraint(Sketcher.Constraint("Radius", 1, Q("0.083 in")))
sketch9.addConstraint(Sketcher.Constraint("DistanceY", 0, 1, 0, 2, Q("1.577 in")))
sketch9.addConstraint(Sketcher.Constraint("DistanceY", 4, 2, 4, 1, Q("1.452 in")))
sketch9.addConstraint(Sketcher.Constraint("DistanceX", 3, 2, 0, 2, Q("0.46 in")))
sketch9.addConstraint(Sketcher.Constraint("DistanceX", 1, 3, -1, 1, Q("0.218 in")))
sketch9.addConstraint(Sketcher.Constraint("DistanceY", -1, 1, 3, 3, Q("1.343 in")))
pocket4 = body.newObject("PartDesign::Pocket", "Pocket003")
pocket4.Profile = sketch9
pocket4.Type = "ThroughAll"

doc.recompute()
